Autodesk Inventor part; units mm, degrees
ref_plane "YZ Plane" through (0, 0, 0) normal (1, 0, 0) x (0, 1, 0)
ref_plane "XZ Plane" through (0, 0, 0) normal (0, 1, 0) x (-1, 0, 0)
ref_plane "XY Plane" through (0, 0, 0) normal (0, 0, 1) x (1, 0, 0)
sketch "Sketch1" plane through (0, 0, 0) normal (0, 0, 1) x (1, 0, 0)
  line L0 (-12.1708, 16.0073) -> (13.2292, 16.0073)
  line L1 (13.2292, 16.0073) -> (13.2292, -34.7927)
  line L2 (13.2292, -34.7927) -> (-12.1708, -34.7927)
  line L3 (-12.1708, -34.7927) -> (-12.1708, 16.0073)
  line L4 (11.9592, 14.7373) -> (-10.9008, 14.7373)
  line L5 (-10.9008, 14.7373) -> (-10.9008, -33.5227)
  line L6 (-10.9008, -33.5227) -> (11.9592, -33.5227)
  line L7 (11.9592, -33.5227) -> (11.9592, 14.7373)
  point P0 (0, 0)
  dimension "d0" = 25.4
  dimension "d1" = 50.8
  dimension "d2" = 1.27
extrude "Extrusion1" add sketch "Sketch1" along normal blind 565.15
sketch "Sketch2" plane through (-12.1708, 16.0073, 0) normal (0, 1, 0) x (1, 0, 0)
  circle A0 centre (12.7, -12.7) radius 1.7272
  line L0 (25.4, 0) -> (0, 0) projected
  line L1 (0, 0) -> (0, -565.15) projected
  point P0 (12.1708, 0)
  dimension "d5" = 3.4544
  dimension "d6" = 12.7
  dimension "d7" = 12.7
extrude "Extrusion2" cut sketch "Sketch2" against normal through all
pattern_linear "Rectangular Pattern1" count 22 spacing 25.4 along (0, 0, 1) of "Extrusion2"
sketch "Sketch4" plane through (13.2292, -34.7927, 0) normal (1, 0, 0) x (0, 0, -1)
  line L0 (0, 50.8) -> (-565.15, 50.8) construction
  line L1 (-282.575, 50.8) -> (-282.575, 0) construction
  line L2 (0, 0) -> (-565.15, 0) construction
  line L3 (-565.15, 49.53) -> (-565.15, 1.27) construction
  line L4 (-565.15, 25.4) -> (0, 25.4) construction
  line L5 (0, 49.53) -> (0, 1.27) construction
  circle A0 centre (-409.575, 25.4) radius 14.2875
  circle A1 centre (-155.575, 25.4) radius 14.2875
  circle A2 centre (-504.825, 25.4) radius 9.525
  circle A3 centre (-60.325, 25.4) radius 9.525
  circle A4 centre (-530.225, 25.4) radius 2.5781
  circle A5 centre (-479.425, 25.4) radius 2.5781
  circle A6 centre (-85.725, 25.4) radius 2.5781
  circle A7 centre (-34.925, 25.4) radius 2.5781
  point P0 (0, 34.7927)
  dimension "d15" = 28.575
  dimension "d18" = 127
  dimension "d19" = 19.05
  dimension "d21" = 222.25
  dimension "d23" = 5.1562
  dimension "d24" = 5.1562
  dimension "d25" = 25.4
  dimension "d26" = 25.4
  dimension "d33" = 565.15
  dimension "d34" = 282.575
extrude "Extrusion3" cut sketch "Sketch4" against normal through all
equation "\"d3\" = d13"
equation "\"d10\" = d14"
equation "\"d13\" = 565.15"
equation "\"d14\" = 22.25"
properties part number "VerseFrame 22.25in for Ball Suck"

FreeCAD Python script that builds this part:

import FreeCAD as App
import Part
import Sketcher
Q = App.Units.Quantity

doc = App.newDocument("Part")
body = doc.addObject("PartDesign::Body", "Body")

sketch1 = body.newObject("Sketcher::SketchObject", "Sketch")
sketch1.AttachmentSupport = (doc.getObject("XY_Plane"), [""])
sketch1.MapMode = "FlatFace"
sketch1.addGeometry([
    Part.LineSegment(App.Vector(13.2292, 16.0073, 0), App.Vector(-12.1708, 16.0073, 0)),
    Part.LineSegment(App.Vector(-12.1708, 16.0073, 0), App.Vector(-12.1708, -34.7927, 0)),
    Part.LineSegment(App.Vector(-12.1708, -34.7927, 0), App.Vector(13.2292, -34.7927, 0)),
    Part.LineSegment(App.Vector(13.2292, -34.7927, 0), App.Vector(13.2292, 16.0073, 0)),
    Part.LineSegment(App.Vector(-10.9008, 14.7373, 0), App.Vector(11.9592, 14.7373, 0)),
    Part.LineSegment(App.Vector(11.9592, 14.7373, 0), App.Vector(11.9592, -33.5227, 0)),
    Part.LineSegment(App.Vector(11.9592, -33.5227, 0), App.Vector(-10.9008, -33.5227, 0)),
    Part.LineSegment(App.Vector(-10.9008, -33.5227, 0), App.Vector(-10.9008, 14.7373, 0)),
], False)
sketch1.addConstraint([
    Sketcher.Constraint("Coincident", 0, 2, 1, 1),
    Sketcher.Constraint("Coincident", 1, 2, 2, 1),
    Sketcher.Constraint("Coincident", 2, 2, 3, 1),
    Sketcher.Constraint("Coincident", 3, 2, 0, 1),
    Sketcher.Constraint("Coincident", 4, 2, 5, 1),
    Sketcher.Constraint("Coincident", 5, 2, 6, 1),
    Sketcher.Constraint("Coincident", 6, 2, 7, 1),
    Sketcher.Constraint("Coincident", 7, 2, 4, 1),
    Sketcher.Constraint("Horizontal", 0),
    Sketcher.Constraint("Vertical", 1),
    Sketcher.Constraint("Horizontal", 2),
    Sketcher.Constraint("Vertical", 3),
    Sketcher.Constraint("Horizontal", 4),
    Sketcher.Constraint("Vertical", 5),
    Sketcher.Constraint("Horizontal", 6),
    Sketcher.Constraint("Vertical", 7),
    Sketcher.Constraint("DistanceX", 0, 2, 0, 1, Q("1 in")),
    Sketcher.Constraint("DistanceY", 1, 2, 1, 1, Q("2 in")),
    Sketcher.Constraint("DistanceX", 4, 2, 3, 2, Q("0.05 in")),
    Sketcher.Constraint("DistanceY", 4, 2, 3, 2, Q("0.05 in")),
    Sketcher.Constraint("DistanceY", 2, 2, 5, 2, Q("0.05 in")),
    Sketcher.Constraint("DistanceX", 1, 2, 6, 2, Q("0.05 in")),
    Sketcher.Constraint("DistanceY", -1, 1, 0, 2, Q("0.6302 in")),
    Sketcher.Constraint("DistanceX", 0, 2, -1, 1, Q("12.1708 mm")),
])
pad1 = body.newObject("PartDesign::Pad", "Pad")
pad1.Profile = sketch1
pad1.Length = Q("22.25 in")

sketch2 = body.newObject("Sketcher::SketchObject", "Sketch001")
sketch2.AttachmentSupport = (doc.getObject("XZ_Plane"), [""])
sketch2.MapMode = "FlatFace"
sketch2.AttachmentOffset = App.Placement(App.Vector(0, 0, -0.6302087 * 25.4), App.Rotation())
sketch2.addGeometry(Part.Circle(App.Vector(0.5292, 12.7, 0), App.Vector(0, 0, 1), 1.7272), False)
sketch2.addConstraint([
    Sketcher.Constraint("Diameter", 0, Q("0.136 in")),
    Sketcher.Constraint("DistanceY", -1, 1, 0, 3, Q("0.5 in")),
    Sketcher.Constraint("DistanceX", -1, 1, 0, 3, Q("0.5292 mm")),
])
pocket1 = body.newObject("PartDesign::Pocket", "Pocket")
pocket1.Profile = sketch2
pocket1.Type = "ThroughAll"
pocket1.Reversed = True
doc.recompute()

linearpattern = body.newObject("PartDesign::LinearPattern", "LinearPattern")
linearpattern.Originals = [pocket1]
linearpattern.Direction = (doc.getObject("Z_Axis"), [""])
linearpattern.Mode = "offset"
linearpattern.Offset = Q("1 in")
linearpattern.Occurrences = 22
body.Tip = linearpattern

sketch3 = body.newObject("Sketcher::SketchObject", "Sketch002")
sketch3.AttachmentSupport = (doc.getObject("YZ_Plane"), [""])
sketch3.MapMode = "FlatFace"
sketch3.AttachmentOffset = App.Placement(App.Vector(0, 0, 13.2292), App.Rotation())
sketch3.addGeometry([
    Part.Circle(App.Vector(-9.3927, 409.575, 0), App.Vector(0, 0, 1), 14.2875),
    Part.Circle(App.Vector(-9.3927, 155.575, 0), App.Vector(0, 0, 1), 14.2875),
    Part.Circle(App.Vector(-9.3927, 504.825, 0), App.Vector(0, 0, 1), 9.525),
    Part.Circle(App.Vector(-9.3927, 60.325, 0), App.Vector(0, 0, 1), 9.525),
    Part.Circle(App.Vector(-9.3927, 530.225, 0), App.Vector(0, 0, 1), 2.5781),
    Part.Circle(App.Vector(-9.3927, 479.425, 0), App.Vector(0, 0, 1), 2.5781),
    Part.Circle(App.Vector(-9.3927, 85.725, 0), App.Vector(0, 0, 1), 2.5781),
    Part.Circle(App.Vector(-9.3927, 34.925, 0), App.Vector(0, 0, 1), 2.5781),
], False)
sketch3.addConstraint([
    Sketcher.Constraint("Equal", 0, 1),
    Sketcher.Constraint("Equal", 2, 3),
    Sketcher.Constraint("Equal", 4, 5),
    Sketcher.Constraint("Equal", 5, 6),
    Sketcher.Constraint("Equal", 6, 7),
    Sketcher.Constraint("Vertical", 0, 3, 1, 3),
    Sketcher.Constraint("Vertical", 1, 3, 2, 3),
    Sketcher.Constraint("Vertical", 2, 3, 3, 3),
    Sketcher.Constraint("Vertical", 3, 3, 4, 3),
    Sketcher.Constraint("Vertical", 4, 3, 5, 3),
    Sketcher.Constraint("Vertical", 5, 3, 6, 3),
    Sketcher.Constraint("Vertical", 6, 3, 7, 3),
    Sketcher.Constraint("Diameter", 2, Q("0.75 in")),
    Sketcher.Constraint("Diameter", 0, Q("1.125 in")),
    Sketcher.Constraint("Diameter", 4, Q("0.203 in")),
    Sketcher.Constraint("DistanceY", 2, 3, 4, 3, Q("1 in")),
    Sketcher.Constraint("DistanceY", 5, 3, 2, 3, Q("1 in")),
    Sketcher.Constraint("DistanceY", 3, 3, 6, 3, Q("1 in")),
    Sketcher.Constraint("DistanceY", 7, 3, 3, 3, Q("1 in")),
    Sketcher.Constraint("DistanceY", 1, 3, 0, 3, Q("10 in")),
    Sketcher.Constraint("DistanceY", 3, 3, 2, 3, Q("17.5 in")),
    Sketcher.Constraint("DistanceY", 0, 3, 2, 3, Q("3.75 in")),
    Sketcher.Constraint("DistanceY", -1, 1, 0, 3, Q("16.125 in")),
    Sketcher.Constraint("DistanceX", 0, 3, -1, 1, Q("0.3698 in")),
])
pocket2 = body.newObject("PartDesign::Pocket", "Pocket001")
pocket2.Profile = sketch3
pocket2.Type = "ThroughAll"

doc.recompute()
